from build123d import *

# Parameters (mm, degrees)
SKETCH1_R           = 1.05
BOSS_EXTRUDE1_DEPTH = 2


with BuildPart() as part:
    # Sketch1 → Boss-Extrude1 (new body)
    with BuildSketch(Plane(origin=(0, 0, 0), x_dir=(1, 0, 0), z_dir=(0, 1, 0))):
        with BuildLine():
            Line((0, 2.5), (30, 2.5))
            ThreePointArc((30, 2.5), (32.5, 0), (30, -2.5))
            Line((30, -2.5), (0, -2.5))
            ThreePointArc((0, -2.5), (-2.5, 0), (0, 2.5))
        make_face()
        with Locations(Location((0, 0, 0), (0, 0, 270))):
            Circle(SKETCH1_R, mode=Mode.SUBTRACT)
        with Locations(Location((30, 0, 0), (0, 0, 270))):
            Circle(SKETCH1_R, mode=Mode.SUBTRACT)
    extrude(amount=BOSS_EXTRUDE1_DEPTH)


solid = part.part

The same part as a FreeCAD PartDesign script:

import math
import FreeCAD as App
import Part
import Sketcher

doc = App.newDocument("Part")
body = doc.addObject("PartDesign::Body", "Body")

sketch1 = body.newObject("Sketcher::SketchObject", "Sketch")
sketch1.AttachmentSupport = (doc.getObject("XZ_Plane"), [""])
sketch1.MapMode = "FlatFace"
sketch1.addGeometry([
    Part.LineSegment(App.Vector(30, -2.5, 0), App.Vector(0, -2.5, 0)),
    Part.ArcOfCircle(Part.Circle(App.Vector(0, 0, 0), App.Vector(0, 0, 1), 2.5), math.radians(90), math.radians(270)),
    Part.LineSegment(App.Vector(0, 2.5, 0), App.Vector(30, 2.5, 0)),
    Part.ArcOfCircle(Part.Circle(App.Vector(30, 0, 0), App.Vector(0, 0, 1), 2.5), math.radians(-90), math.radians(90)),
    Part.Circle(App.Vector(30, 0, 0), App.Vector(0, 0, 1), 1.1),
    Part.Circle(App.Vector(0, 0, 0), App.Vector(0, 0, 1), 1.1),
], False)
sketch1.addConstraint([
    Sketcher.Constraint("Tangent", 0, 2, 1, 2),
    Sketcher.Constraint("Tangent", 1, 1, 2, 1),
    Sketcher.Constraint("Tangent", 2, 2, 3, 2),
    Sketcher.Constraint("Tangent", 3, 1, 0, 1),
    Sketcher.Constraint("Horizontal", 0),
    Sketcher.Constraint("Horizontal", 2),
    Sketcher.Constraint("Coincident", 1, 3, -1, 1),
    Sketcher.Constraint("Coincident", 5, 3, -1, 1),
    Sketcher.Constraint("Coincident", 4, 3, 3, 3),
    Sketcher.Constraint("Equal", 4, 5),
    Sketcher.Constraint("Diameter", 4, 2.1),
    Sketcher.Constraint("Radius", 1, 2.5),
    Sketcher.Constraint("DistanceX", 0, 2, 0, 1, 30.0),
])
pad1 = body.newObject("PartDesign::Pad", "Pad")
pad1.Profile = sketch1
pad1.Length = 2
pad1.Reversed = True

doc.recompute()
